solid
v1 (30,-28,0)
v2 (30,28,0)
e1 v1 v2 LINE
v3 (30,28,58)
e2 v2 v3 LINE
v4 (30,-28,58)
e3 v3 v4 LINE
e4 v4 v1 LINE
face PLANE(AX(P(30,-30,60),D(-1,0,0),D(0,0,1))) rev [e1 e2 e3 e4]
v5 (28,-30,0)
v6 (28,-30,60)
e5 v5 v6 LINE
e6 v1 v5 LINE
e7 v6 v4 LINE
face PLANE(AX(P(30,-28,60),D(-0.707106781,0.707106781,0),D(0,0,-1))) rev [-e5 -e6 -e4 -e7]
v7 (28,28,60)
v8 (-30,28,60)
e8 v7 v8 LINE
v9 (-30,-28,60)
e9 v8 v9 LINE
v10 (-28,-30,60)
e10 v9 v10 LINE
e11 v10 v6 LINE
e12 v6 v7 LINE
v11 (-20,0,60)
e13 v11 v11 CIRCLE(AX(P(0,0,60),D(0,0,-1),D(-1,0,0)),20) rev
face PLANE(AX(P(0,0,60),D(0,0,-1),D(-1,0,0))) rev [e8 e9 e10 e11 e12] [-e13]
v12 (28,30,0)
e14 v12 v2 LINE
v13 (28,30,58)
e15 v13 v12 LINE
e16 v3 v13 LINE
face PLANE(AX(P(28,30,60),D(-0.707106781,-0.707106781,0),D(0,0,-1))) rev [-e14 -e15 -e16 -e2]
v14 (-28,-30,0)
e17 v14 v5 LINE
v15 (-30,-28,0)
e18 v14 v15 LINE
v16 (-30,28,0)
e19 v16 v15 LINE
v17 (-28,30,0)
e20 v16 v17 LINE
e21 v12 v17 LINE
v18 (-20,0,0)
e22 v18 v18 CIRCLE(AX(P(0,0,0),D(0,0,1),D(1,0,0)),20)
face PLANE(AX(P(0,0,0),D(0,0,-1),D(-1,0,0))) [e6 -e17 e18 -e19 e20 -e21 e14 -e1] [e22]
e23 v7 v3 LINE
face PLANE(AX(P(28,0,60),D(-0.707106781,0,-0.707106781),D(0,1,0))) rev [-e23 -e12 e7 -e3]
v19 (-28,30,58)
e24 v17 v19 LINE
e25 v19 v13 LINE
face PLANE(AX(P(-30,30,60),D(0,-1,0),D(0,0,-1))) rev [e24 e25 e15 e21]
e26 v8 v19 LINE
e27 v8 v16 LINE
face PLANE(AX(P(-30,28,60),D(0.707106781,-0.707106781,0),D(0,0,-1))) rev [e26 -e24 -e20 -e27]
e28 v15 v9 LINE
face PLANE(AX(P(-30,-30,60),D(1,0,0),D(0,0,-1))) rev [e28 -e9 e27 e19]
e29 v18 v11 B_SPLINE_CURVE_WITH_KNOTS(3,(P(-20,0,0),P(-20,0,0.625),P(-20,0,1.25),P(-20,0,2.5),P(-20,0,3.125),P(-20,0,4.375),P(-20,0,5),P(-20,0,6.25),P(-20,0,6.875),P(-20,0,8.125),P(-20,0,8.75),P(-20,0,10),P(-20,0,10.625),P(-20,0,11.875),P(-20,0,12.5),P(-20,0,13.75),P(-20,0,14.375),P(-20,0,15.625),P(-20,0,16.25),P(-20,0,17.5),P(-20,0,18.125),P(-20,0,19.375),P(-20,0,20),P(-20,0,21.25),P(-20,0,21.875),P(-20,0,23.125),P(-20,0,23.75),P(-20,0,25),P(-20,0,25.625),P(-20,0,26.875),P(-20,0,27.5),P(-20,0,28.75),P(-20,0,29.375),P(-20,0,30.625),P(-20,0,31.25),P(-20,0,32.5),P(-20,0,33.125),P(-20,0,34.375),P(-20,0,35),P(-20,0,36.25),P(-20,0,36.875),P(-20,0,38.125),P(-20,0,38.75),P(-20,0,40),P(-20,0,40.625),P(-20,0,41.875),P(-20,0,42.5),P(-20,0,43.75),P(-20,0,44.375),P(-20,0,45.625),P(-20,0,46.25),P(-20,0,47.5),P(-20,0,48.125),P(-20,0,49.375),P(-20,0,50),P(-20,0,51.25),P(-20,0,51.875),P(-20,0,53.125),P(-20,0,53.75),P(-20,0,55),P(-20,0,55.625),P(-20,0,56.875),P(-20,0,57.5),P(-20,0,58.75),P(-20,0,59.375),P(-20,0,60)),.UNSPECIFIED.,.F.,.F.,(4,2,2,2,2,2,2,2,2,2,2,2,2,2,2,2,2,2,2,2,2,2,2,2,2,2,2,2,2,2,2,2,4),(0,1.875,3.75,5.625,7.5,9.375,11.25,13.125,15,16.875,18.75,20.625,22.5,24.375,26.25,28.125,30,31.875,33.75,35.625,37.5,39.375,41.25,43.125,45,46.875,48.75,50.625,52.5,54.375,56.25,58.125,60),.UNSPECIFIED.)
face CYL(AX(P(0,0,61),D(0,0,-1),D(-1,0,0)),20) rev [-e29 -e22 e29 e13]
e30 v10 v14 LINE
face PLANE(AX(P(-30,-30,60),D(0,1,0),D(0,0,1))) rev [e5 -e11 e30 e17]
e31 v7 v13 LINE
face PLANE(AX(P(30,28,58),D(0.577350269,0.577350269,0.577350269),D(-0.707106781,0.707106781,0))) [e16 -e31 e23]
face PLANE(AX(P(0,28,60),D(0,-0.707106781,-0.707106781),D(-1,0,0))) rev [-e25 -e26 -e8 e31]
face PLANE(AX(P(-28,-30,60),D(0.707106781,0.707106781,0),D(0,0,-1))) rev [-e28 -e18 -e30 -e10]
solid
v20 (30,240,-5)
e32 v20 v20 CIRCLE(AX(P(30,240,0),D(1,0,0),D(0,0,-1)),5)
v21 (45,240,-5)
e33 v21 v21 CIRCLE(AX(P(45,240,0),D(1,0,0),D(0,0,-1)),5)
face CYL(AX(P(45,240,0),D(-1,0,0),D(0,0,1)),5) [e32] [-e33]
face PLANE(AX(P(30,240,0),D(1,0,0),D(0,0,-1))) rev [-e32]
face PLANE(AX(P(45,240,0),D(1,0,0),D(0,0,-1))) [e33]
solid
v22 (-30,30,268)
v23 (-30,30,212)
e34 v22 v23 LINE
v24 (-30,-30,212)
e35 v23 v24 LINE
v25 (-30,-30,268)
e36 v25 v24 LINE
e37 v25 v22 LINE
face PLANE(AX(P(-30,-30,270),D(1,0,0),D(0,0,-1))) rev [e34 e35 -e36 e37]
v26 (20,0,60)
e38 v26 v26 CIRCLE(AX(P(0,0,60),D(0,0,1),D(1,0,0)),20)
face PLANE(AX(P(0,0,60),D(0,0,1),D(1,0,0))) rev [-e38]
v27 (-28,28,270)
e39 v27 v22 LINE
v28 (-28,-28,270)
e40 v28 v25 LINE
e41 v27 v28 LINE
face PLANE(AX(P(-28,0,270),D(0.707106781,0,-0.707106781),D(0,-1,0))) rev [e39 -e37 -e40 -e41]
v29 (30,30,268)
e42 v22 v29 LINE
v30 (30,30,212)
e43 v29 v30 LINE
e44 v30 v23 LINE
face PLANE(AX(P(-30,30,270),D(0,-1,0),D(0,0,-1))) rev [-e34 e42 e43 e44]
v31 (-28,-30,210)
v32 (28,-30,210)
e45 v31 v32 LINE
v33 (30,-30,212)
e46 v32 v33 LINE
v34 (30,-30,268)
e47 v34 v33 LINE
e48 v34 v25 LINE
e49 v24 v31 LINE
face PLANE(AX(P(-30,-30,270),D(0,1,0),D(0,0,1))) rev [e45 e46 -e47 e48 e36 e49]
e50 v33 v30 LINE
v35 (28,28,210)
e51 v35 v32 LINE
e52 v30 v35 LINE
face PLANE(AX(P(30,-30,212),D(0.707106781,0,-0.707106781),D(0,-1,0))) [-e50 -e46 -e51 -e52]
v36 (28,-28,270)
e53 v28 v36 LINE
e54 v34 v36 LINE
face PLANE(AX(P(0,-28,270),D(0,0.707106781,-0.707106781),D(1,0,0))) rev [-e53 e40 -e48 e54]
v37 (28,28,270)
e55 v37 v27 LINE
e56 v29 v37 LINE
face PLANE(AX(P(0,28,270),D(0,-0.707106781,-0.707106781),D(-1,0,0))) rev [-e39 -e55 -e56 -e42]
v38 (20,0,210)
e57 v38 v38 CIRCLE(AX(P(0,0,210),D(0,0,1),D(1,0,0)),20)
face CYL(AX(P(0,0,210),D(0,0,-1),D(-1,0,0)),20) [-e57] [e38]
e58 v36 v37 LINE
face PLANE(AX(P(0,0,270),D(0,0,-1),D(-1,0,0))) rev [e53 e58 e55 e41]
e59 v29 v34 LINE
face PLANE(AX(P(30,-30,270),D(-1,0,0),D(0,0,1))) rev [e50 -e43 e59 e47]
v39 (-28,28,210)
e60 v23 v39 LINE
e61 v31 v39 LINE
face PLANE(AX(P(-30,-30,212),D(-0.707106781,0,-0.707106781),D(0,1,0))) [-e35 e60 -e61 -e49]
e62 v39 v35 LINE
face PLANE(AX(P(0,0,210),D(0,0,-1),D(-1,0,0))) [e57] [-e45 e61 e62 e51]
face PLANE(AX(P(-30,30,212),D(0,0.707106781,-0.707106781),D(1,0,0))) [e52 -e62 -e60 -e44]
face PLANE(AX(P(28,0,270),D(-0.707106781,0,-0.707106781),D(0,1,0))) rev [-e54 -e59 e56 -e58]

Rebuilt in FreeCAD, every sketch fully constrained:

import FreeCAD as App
import Part
import Sketcher
from FreeCAD import Vector


def edges_at(feature, points):
    """Names of the edges that pass closest to the given points."""
    edges = feature.Shape.Edges
    near = lambda p: min(range(len(edges)), key=lambda i: edges[i].distToShape(Part.Vertex(*p))[0])
    return sorted({f"Edge{near(p) + 1}" for p in points})


def add_polygon(sketch, points):
    """Adds a closed chain of lines whose ends are joined by coincident constraints."""
    first, n = sketch.GeometryCount, len(points)
    for a, b in zip(points, points[1:] + points[:1]):
        sketch.addGeometry(Part.LineSegment(App.Vector(*a, 0), App.Vector(*b, 0)), False)
    for i in range(n):
        sketch.addConstraint(Sketcher.Constraint("Coincident", first + i, 2, first + (i + 1) % n, 1))

doc = App.newDocument("Part")
body = doc.addObject("PartDesign::Body", "Body")

sketch1 = body.newObject("Sketcher::SketchObject", "Sketch")
sketch1.AttachmentSupport = (doc.getObject("XY_Plane"), [""])
sketch1.MapMode = "FlatFace"
add_polygon(sketch1, [(-30, 30), (-30, -30), (30, -30), (30, 30)])
sketch1.addConstraint(Sketcher.Constraint("Vertical", 0))
sketch1.addConstraint(Sketcher.Constraint("Horizontal", 1))
sketch1.addConstraint(Sketcher.Constraint("Vertical", 2))
sketch1.addConstraint(Sketcher.Constraint("Horizontal", 3))
sketch1.addConstraint(Sketcher.Constraint("Symmetric", 0, 2, 2, 2, -1, 1))
sketch1.addConstraint(Sketcher.Constraint("Equal", 3, 0))
sketch1.addConstraint(Sketcher.Constraint("DistanceX", 1, 1, 1, 2, 60.0))
pad1 = body.newObject("PartDesign::Pad", "Pad")
pad1.Profile = sketch1
pad1.Length = 60

sketch2 = body.newObject("Sketcher::SketchObject", "Sketch001")
sketch2.AttachmentSupport = (doc.getObject("XY_Plane"), [""])
sketch2.MapMode = "FlatFace"
sketch2.addGeometry(Part.Circle(Vector(0, 0, 0), Vector(0, 0, 1), 20), False)
sketch2.addConstraint(Sketcher.Constraint("Coincident", 0, 3, -1, 1))
sketch2.addConstraint(Sketcher.Constraint("Diameter", 0, 40.0))
pocket1 = body.newObject("PartDesign::Pocket", "Pocket")
pocket1.Profile = sketch2
pocket1.Length = 61
pocket1.Reversed = True
doc.recompute()

chamfer = body.newObject("PartDesign::Chamfer", "Chamfer")
chamfer.Base = (pocket1, edges_at(pocket1, [
    (30, 0, 60),
    (30, -30, 30),
    (-30, -30, 30),
    (-30, 30, 30),
    (30, 30, 30),
    (0, 30, 60),
]))
chamfer.Size = 2
body2 = doc.addObject("PartDesign::Body", "Body001")

sketch3 = body2.newObject("Sketcher::SketchObject", "Sketch002")
sketch3.AttachmentSupport = (doc.getObject("XY_Plane001"), [""])
sketch3.MapMode = "FlatFace"
sketch3.AttachmentOffset = App.Placement(Vector(0, 0, 60), App.Rotation())
sketch3.addGeometry(Part.Circle(Vector(0, 0, 0), Vector(0, 0, 1), 20), False)
sketch3.addConstraint(Sketcher.Constraint("Coincident", 0, 3, -1, 1))
sketch3.addConstraint(Sketcher.Constraint("Diameter", 0, 40.0))
pad2 = body2.newObject("PartDesign::Pad", "Pad001")
pad2.Profile = sketch3
pad2.Length = 150

sketch4 = body2.newObject("Sketcher::SketchObject", "Sketch003")
sketch4.AttachmentSupport = (doc.getObject("XY_Plane001"), [""])
sketch4.MapMode = "FlatFace"
sketch4.AttachmentOffset = App.Placement(Vector(0, 0, 210), App.Rotation())
add_polygon(sketch4, [(-30, 30), (-30, -30), (30, -30), (30, 30)])
sketch4.addConstraint(Sketcher.Constraint("Vertical", 0))
sketch4.addConstraint(Sketcher.Constraint("Horizontal", 1))
sketch4.addConstraint(Sketcher.Constraint("Vertical", 2))
sketch4.addConstraint(Sketcher.Constraint("Horizontal", 3))
sketch4.addConstraint(Sketcher.Constraint("Symmetric", 0, 2, 2, 2, -1, 1))
sketch4.addConstraint(Sketcher.Constraint("Equal", 3, 0))
sketch4.addConstraint(Sketcher.Constraint("DistanceX", 1, 1, 1, 2, 60.0))
pad3 = body2.newObject("PartDesign::Pad", "Pad002")
pad3.Profile = sketch4
pad3.Length = 60
doc.recompute()

chamfer2 = body2.newObject("PartDesign::Chamfer", "Chamfer001")
chamfer2.Base = (pad3, edges_at(pad3, [
    (30, 0, 210),
    (0, 30, 210),
    (-30, 0, 210),
    (30, 0, 270),
    (0, 30, 270),
    (-30, 0, 270),
    (0, -30, 270),
]))
chamfer2.Size = 2
body3 = doc.addObject("PartDesign::Body", "Body002")

sketch5 = body3.newObject("Sketcher::SketchObject", "Sketch004")
sketch5.AttachmentSupport = (doc.getObject("YZ_Plane002"), [""])
sketch5.MapMode = "FlatFace"
sketch5.AttachmentOffset = App.Placement(Vector(0, 0, 30), App.Rotation())
sketch5.addGeometry(Part.Circle(Vector(240, 0, 0), Vector(0, 0, 1), 5), False)
sketch5.addConstraint(Sketcher.Constraint("PointOnObject", 0, 3, -1))
sketch5.addConstraint(Sketcher.Constraint("Diameter", 0, 10.0))
sketch5.addConstraint(Sketcher.Constraint("DistanceX", -1, 1, 0, 3, 240.0))
pad4 = body3.newObject("PartDesign::Pad", "Pad003")
pad4.Profile = sketch5
pad4.Length = 15

doc.recompute()
